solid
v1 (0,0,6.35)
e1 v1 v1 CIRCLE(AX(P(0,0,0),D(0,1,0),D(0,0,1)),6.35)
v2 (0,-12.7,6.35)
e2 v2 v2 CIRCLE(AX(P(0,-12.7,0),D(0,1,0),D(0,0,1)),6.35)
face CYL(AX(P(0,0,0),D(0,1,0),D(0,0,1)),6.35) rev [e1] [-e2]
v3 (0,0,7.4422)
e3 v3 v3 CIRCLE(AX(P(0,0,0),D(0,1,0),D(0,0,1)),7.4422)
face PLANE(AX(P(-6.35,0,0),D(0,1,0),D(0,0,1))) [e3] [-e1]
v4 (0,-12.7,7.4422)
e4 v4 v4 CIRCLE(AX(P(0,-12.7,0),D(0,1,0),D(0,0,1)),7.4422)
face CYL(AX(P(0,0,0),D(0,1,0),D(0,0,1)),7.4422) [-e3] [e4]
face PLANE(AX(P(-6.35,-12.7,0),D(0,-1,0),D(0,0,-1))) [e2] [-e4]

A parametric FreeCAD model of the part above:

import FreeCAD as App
import Part
import Sketcher
Q = App.Units.Quantity

doc = App.newDocument("Part")
body = doc.addObject("PartDesign::Body", "Body")

sketch1 = body.newObject("Sketcher::SketchObject", "Sketch")
sketch1.AttachmentSupport = (doc.getObject("XY_Plane"), [""])
sketch1.MapMode = "FlatFace"
sketch1.addGeometry([
    Part.LineSegment(App.Vector(-7.4, 0, 0), App.Vector(-7.4, -12.7, 0)),
    Part.LineSegment(App.Vector(-7.4, -12.7, 0), App.Vector(-6.3, -12.7, 0)),
    Part.LineSegment(App.Vector(-6.3, -12.7, 0), App.Vector(-6.3, 0, 0)),
    Part.LineSegment(App.Vector(-6.3, 0, 0), App.Vector(-7.4, 0, 0)),
], False)
sketch1.addConstraint([
    Sketcher.Constraint("Coincident", 0, 2, 1, 1),
    Sketcher.Constraint("Coincident", 1, 2, 2, 1),
    Sketcher.Constraint("Coincident", 2, 2, 3, 1),
    Sketcher.Constraint("Coincident", 3, 2, 0, 1),
    Sketcher.Constraint("Vertical", 0),
    Sketcher.Constraint("Horizontal", 1),
    Sketcher.Constraint("Vertical", 2),
    Sketcher.Constraint("Horizontal", 3),
    Sketcher.Constraint("PointOnObject", 2, 2, -1),
    Sketcher.Constraint("DistanceY", 0, 2, 0, 1, Q("0.5 in")),
    Sketcher.Constraint("DistanceX", 1, 1, 1, 2, Q("0.043 in")),
    Sketcher.Constraint("DistanceX", 1, 2, -1, 1, Q("0.25 in")),
])
revolution = body.newObject("PartDesign::Revolution", "Revolution")
revolution.Profile = sketch1
revolution.ReferenceAxis = (sketch1, ["V_Axis"])
revolution.Angle = 360

doc.recompute()
